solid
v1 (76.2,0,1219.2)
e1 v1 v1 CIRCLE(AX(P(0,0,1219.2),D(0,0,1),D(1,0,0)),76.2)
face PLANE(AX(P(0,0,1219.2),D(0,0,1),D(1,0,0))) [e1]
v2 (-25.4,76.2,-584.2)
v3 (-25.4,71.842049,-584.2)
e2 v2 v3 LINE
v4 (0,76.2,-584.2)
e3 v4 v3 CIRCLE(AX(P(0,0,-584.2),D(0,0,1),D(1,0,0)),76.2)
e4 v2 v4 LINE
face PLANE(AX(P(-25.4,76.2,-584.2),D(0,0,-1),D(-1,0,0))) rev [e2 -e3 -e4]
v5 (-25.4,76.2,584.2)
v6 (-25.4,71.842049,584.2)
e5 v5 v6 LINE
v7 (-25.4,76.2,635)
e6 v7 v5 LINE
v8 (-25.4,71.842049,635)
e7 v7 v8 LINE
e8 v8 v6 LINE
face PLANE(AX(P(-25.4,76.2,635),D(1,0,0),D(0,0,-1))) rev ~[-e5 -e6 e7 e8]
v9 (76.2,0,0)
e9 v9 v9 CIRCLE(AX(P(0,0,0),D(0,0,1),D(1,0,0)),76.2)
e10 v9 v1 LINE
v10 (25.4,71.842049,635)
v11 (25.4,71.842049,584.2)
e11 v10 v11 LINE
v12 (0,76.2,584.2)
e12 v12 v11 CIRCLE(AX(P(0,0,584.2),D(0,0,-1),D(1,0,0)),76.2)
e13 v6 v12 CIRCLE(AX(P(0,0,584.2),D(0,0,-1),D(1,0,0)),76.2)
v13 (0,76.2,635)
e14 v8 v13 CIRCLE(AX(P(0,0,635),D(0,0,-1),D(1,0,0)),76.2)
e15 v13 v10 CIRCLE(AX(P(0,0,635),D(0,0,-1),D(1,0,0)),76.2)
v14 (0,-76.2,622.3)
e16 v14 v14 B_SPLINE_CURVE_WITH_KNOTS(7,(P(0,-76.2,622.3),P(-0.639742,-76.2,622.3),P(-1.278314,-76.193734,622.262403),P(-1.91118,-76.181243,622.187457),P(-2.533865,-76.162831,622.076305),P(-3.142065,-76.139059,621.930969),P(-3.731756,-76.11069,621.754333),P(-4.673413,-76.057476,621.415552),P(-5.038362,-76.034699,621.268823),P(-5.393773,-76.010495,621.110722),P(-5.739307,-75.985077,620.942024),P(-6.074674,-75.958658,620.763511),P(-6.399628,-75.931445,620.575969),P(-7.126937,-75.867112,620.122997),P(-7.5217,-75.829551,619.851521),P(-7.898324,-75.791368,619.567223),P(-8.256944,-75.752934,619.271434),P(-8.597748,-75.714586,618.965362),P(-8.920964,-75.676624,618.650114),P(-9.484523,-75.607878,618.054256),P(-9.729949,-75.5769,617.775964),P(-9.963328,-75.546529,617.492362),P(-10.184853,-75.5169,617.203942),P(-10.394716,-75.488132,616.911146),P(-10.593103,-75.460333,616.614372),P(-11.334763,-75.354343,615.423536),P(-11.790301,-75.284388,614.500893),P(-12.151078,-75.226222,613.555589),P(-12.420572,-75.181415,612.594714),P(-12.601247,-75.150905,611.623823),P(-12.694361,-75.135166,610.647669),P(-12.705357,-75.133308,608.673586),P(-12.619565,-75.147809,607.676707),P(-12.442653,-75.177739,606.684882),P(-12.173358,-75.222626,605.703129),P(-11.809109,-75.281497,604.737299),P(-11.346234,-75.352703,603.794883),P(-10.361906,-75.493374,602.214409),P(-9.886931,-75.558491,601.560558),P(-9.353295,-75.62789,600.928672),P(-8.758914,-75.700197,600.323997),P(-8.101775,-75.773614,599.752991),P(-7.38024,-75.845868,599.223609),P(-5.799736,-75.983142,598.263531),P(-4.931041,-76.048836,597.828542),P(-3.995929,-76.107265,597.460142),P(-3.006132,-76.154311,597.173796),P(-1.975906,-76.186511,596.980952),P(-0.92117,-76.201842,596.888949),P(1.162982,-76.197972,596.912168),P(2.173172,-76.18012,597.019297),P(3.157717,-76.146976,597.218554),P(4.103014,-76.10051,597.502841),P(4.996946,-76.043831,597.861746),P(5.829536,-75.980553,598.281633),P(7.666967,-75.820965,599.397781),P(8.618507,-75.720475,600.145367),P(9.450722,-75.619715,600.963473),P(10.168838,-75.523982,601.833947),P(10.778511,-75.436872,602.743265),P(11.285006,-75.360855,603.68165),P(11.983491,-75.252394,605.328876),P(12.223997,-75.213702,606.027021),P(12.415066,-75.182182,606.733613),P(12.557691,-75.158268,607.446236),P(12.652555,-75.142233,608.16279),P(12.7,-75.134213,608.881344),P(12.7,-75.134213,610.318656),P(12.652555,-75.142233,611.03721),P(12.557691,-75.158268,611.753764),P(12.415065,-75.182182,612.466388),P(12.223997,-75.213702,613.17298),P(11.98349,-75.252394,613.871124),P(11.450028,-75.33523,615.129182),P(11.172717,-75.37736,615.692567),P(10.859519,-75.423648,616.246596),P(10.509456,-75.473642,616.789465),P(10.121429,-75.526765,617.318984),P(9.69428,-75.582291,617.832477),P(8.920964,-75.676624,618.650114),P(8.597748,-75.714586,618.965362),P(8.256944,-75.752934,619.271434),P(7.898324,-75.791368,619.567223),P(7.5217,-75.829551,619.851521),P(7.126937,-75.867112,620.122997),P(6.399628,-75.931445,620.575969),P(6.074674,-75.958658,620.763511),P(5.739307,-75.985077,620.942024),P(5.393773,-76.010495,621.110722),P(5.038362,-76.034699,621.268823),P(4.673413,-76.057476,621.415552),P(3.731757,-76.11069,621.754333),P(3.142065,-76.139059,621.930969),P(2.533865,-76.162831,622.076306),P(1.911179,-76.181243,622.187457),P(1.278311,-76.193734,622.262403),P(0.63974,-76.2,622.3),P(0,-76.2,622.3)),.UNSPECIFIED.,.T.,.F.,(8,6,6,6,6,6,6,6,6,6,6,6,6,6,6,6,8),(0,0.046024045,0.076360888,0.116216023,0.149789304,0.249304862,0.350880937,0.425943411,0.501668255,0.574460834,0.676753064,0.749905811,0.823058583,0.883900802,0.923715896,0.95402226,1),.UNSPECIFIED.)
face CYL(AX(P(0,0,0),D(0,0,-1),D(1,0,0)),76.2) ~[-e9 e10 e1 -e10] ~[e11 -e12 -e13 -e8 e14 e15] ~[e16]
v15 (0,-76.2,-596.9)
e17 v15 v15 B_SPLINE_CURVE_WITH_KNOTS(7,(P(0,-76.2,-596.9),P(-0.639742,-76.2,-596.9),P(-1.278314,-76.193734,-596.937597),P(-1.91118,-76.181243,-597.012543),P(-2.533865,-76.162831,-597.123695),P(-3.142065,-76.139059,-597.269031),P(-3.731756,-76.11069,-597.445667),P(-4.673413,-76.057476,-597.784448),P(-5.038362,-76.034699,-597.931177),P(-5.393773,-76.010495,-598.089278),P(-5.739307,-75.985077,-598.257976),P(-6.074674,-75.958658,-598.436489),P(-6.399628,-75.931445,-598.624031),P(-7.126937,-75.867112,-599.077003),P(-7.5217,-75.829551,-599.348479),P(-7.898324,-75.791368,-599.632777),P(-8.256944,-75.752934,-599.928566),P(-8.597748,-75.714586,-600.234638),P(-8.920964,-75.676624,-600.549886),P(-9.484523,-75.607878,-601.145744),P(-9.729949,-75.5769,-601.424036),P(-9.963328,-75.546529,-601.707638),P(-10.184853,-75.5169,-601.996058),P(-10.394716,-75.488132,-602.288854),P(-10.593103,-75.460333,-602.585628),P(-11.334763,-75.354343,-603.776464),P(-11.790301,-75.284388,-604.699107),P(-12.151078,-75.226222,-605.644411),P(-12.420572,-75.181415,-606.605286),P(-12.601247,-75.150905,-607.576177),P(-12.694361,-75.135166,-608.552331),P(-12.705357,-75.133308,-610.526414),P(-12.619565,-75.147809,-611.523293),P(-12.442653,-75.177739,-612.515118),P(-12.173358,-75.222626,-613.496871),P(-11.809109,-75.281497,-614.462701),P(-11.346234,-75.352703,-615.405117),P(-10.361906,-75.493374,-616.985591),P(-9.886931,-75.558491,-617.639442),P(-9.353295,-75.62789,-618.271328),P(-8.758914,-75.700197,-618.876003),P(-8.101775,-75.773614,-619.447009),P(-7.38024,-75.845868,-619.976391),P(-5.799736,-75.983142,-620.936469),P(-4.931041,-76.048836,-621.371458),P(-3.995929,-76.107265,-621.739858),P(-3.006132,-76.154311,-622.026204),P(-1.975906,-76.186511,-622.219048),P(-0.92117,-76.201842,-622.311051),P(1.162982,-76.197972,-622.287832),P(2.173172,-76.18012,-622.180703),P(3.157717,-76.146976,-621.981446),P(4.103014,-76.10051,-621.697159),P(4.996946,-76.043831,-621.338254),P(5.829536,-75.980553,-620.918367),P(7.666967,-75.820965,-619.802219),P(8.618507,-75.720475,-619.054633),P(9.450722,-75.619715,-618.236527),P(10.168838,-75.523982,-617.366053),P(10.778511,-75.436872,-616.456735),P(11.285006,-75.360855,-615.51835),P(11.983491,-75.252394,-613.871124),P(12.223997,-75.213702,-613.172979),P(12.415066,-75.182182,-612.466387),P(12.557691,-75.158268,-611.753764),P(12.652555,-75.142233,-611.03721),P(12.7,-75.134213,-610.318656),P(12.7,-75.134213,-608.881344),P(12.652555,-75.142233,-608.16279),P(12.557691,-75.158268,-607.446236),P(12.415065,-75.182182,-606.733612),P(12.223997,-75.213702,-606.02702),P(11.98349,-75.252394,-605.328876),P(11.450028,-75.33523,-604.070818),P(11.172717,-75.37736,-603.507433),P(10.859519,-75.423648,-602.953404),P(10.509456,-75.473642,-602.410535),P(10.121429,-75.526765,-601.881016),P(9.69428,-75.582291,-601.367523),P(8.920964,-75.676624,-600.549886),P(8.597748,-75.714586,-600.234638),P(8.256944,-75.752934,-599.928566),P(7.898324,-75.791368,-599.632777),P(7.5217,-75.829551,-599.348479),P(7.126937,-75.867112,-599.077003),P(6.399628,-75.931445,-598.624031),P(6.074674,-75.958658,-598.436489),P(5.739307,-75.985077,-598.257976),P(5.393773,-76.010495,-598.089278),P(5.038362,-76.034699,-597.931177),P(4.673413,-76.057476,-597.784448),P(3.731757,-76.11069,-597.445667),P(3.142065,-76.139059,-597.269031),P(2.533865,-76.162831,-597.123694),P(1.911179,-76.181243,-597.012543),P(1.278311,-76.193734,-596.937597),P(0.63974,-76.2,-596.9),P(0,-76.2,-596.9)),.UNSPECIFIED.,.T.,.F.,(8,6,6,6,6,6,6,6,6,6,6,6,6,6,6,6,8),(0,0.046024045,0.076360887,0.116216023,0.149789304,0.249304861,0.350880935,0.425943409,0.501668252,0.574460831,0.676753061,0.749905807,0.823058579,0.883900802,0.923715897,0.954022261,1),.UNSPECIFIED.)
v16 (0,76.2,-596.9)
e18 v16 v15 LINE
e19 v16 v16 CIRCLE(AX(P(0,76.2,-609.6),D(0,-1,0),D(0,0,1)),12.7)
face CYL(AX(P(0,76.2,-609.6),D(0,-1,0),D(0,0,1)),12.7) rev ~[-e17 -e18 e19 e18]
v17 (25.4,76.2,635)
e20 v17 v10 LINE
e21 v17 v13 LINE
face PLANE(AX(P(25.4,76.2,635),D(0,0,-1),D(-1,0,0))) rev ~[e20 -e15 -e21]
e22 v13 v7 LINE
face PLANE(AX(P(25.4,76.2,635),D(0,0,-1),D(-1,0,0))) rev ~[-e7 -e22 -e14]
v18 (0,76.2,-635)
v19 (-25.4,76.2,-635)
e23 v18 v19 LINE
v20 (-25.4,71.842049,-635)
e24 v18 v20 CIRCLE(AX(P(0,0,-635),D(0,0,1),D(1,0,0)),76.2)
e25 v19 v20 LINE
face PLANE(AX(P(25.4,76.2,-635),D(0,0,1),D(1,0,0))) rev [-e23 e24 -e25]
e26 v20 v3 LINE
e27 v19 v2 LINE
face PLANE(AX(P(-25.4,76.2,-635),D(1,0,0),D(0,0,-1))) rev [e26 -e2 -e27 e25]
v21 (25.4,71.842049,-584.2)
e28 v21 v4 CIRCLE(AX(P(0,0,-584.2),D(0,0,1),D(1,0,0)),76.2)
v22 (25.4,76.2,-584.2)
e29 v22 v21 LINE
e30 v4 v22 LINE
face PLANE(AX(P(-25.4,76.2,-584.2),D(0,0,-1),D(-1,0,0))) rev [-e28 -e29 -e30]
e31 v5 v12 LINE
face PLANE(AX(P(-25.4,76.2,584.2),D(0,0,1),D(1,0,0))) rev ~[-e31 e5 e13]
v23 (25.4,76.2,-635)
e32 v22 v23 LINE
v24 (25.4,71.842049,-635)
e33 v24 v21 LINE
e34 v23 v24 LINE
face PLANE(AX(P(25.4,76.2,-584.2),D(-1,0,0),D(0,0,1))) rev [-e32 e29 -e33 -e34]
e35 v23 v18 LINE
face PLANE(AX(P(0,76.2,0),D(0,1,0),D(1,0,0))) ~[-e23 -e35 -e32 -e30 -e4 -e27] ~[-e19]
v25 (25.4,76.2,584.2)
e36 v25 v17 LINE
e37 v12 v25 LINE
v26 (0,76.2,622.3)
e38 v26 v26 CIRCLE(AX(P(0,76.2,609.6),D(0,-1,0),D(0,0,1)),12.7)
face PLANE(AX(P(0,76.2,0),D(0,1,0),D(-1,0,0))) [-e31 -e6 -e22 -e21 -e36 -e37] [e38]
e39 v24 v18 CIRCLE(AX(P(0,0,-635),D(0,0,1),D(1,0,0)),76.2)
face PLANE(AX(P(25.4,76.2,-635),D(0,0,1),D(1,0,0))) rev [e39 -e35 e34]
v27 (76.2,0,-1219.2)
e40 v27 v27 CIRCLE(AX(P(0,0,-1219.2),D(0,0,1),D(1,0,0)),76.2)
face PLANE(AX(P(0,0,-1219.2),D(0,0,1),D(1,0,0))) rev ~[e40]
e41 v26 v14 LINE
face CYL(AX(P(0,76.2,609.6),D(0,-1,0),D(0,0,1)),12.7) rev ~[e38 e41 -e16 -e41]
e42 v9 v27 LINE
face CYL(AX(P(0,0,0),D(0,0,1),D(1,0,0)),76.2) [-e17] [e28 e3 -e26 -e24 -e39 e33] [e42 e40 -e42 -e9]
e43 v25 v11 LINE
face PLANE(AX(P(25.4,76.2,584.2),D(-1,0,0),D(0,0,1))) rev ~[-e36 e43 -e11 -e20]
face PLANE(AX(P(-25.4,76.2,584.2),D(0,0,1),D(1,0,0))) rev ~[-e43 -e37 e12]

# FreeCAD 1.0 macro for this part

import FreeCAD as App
import Part
import Sketcher
from FreeCAD import Vector
Q = App.Units.Quantity


def add_polygon(sketch, points):
    """Adds a closed chain of lines whose ends are joined by coincident constraints."""
    first, n = sketch.GeometryCount, len(points)
    for a, b in zip(points, points[1:] + points[:1]):
        sketch.addGeometry(Part.LineSegment(App.Vector(*a, 0), App.Vector(*b, 0)), False)
    for i in range(n):
        sketch.addConstraint(Sketcher.Constraint("Coincident", first + i, 2, first + (i + 1) % n, 1))

doc = App.newDocument("Part")
body = doc.addObject("PartDesign::Body", "Body")

# Sketch on XY plane
sketch1 = body.newObject("Sketcher::SketchObject", "Sketch")
sketch1.AttachmentSupport = (doc.getObject("XY_Plane"), [""])
sketch1.MapMode = "FlatFace"
sketch1.addGeometry(Part.Circle(Vector(0, 0, 0), Vector(0, 0, 1), 76.2), False)
sketch1.addConstraint(Sketcher.Constraint("Coincident", 0, 3, -1, 1))
sketch1.addConstraint(Sketcher.Constraint("Diameter", 0, Q("6 in")))
pad1 = body.newObject("PartDesign::Pad", "Pad")
pad1.Profile = sketch1
pad1.Length = Q("96 in")
pad1.Midplane = True

# Sketch on XZ plane
sketch2 = body.newObject("Sketcher::SketchObject", "Sketch001")
sketch2.AttachmentSupport = (doc.getObject("XZ_Plane"), [""])
sketch2.MapMode = "FlatFace"
sketch2.AttachmentOffset = App.Placement(Vector(0, 0, -3 * 25.4), App.Rotation())
add_polygon(sketch2, [(-25.4, 584.2), (-25.4, 635), (25.4, 635), (25.4, 584.2)])  # lines 0-3
sketch2.addConstraint(Sketcher.Constraint("Vertical", 0))
sketch2.addConstraint(Sketcher.Constraint("Horizontal", 1))
sketch2.addConstraint(Sketcher.Constraint("Vertical", 2))
sketch2.addConstraint(Sketcher.Constraint("Horizontal", 3))
sketch2.addConstraint(Sketcher.Constraint("Equal", 3, 0))
sketch2.addConstraint(Sketcher.Constraint("DistanceX", 1, 1, 1, 2, Q("2 in")))
sketch2.addConstraint(Sketcher.Constraint("DistanceX", 0, 2, -1, 1, Q("1 in")))
sketch2.addConstraint(Sketcher.Constraint("DistanceY", -1, 1, 0, 2, Q("25 in")))
pad2 = body.newObject("PartDesign::Pad", "Pad001")
pad2.Profile = sketch2
pad2.Length = Q("1 in")
doc.recompute()

mirrored = body.newObject("PartDesign::Mirrored", "Mirrored")
mirrored.Originals = [pad2]
mirrored.MirrorPlane = (doc.getObject("XY_Plane"), [""])
body.Tip = mirrored

# Sketch on XZ plane
sketch3 = body.newObject("Sketcher::SketchObject", "Sketch002")
sketch3.AttachmentSupport = (doc.getObject("XZ_Plane"), [""])
sketch3.MapMode = "FlatFace"
sketch3.AttachmentOffset = App.Placement(Vector(0, 0, -3 * 25.4), App.Rotation())
sketch3.addGeometry(Part.Circle(Vector(0, 609.6, 0), Vector(0, 0, 1), 12.7), False)
sketch3.addGeometry(Part.Circle(Vector(0, -609.6, 0), Vector(0, 0, 1), 12.7), False)
sketch3.addConstraint(Sketcher.Constraint("Equal", 0, 1))
sketch3.addConstraint(Sketcher.Constraint("Symmetric", 0, 3, 1, 3, -1, 1))
sketch3.addConstraint(Sketcher.Constraint("PointOnObject", 0, 3, -2))
sketch3.addConstraint(Sketcher.Constraint("Diameter", 0, Q("1 in")))
sketch3.addConstraint(Sketcher.Constraint("DistanceY", -1, 1, 0, 3, Q("24 in")))
doc.recompute()
hole = body.newObject("PartDesign::Hole", "Hole")
hole.Profile = sketch3
hole.ThreadType = "None"
hole.Diameter = Q("1 in")
hole.DepthType = "ThroughAll"
hole.Reversed = True

doc.recompute()
